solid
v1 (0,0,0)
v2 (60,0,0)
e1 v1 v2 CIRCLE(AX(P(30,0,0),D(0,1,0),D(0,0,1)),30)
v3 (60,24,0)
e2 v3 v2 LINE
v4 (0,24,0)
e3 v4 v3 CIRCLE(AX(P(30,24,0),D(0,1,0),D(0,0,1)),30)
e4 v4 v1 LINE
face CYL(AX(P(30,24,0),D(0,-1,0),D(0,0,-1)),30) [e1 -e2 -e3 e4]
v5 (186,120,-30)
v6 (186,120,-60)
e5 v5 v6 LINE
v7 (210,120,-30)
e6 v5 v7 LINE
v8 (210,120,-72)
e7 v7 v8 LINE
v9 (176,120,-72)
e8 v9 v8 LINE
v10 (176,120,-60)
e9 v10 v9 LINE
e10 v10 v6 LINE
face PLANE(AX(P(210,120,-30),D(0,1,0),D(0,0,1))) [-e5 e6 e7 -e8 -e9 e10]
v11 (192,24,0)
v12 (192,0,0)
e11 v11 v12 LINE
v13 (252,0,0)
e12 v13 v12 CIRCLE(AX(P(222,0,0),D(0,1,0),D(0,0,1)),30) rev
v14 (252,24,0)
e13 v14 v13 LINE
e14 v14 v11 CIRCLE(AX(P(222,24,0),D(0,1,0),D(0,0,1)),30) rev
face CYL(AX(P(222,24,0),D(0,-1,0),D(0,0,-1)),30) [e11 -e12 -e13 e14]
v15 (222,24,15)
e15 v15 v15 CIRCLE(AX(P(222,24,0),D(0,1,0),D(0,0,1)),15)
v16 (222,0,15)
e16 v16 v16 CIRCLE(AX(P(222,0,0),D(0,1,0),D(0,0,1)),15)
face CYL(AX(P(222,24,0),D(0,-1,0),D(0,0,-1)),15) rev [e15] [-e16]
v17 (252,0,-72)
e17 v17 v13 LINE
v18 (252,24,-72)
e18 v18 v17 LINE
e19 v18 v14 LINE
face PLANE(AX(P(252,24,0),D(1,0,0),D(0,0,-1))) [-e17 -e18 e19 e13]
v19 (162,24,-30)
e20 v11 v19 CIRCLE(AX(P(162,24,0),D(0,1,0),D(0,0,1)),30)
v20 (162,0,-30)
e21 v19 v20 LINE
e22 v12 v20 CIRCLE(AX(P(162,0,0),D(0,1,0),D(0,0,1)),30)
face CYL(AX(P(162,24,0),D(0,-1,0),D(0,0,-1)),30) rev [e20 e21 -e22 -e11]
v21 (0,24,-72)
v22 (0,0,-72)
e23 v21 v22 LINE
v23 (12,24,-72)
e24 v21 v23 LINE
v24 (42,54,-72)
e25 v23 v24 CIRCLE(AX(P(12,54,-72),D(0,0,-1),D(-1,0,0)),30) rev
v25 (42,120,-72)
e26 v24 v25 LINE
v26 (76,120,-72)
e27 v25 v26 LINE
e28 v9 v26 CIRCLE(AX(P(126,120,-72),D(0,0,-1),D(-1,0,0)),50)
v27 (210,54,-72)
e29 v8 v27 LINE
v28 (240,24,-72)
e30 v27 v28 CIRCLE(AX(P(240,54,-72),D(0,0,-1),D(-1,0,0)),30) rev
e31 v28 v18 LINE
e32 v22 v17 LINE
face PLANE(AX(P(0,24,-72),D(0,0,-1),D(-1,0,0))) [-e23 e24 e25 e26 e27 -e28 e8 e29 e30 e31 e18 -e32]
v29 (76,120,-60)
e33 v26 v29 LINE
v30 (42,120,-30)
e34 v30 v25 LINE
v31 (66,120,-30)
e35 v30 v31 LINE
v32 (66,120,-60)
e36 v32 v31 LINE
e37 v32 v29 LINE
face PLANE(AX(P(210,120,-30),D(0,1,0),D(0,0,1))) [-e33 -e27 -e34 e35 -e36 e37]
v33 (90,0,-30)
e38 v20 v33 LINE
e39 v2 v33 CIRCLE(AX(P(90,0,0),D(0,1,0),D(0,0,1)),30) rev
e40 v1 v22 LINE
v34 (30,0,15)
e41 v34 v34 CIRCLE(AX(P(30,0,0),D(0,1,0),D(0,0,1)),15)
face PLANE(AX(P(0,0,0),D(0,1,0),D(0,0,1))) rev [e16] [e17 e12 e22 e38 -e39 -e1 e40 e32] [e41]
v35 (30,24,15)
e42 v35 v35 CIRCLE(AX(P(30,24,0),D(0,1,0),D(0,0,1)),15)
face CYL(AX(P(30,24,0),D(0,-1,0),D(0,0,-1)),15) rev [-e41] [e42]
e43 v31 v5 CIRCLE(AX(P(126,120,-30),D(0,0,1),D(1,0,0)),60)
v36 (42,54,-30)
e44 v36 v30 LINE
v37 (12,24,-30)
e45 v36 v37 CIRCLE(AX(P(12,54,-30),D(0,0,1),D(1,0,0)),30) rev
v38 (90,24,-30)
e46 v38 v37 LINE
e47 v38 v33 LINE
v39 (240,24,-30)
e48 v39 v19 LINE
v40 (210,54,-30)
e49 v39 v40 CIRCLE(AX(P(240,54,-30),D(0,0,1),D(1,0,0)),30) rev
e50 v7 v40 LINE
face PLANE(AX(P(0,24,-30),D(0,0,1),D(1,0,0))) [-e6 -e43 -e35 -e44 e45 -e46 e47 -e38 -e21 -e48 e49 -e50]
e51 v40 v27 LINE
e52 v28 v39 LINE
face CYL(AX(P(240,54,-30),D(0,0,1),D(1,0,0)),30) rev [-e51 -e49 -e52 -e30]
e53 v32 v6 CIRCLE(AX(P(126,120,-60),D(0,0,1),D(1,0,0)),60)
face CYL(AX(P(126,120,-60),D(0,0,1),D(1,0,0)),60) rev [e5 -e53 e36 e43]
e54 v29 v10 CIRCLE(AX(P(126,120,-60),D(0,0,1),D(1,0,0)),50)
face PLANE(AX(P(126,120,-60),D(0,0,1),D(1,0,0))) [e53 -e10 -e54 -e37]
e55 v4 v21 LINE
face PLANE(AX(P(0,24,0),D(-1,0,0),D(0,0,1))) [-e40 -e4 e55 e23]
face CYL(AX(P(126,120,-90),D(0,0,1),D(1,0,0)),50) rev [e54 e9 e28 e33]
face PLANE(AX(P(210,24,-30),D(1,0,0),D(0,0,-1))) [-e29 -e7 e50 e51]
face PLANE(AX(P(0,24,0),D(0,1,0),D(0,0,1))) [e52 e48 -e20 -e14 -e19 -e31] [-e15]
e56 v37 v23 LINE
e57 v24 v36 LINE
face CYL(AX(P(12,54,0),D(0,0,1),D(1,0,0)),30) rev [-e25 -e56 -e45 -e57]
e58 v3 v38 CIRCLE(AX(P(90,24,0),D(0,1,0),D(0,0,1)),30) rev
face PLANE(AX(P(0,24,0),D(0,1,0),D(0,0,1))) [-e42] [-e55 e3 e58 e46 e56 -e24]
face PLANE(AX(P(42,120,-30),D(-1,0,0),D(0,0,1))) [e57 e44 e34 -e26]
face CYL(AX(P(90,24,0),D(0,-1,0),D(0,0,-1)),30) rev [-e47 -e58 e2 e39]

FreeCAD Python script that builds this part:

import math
import FreeCAD as App
import Part
import Sketcher


def edges_at(feature, points):
    """Names of the edges that pass closest to the given points."""
    edges = feature.Shape.Edges
    near = lambda p: min(range(len(edges)), key=lambda i: edges[i].distToShape(Part.Vertex(*p))[0])
    return sorted({f"Edge{near(p) + 1}" for p in points})

doc = App.newDocument("Part")
body = doc.addObject("PartDesign::Body", "Body")

# Sketch on XZ plane
sketch1 = body.newObject("Sketcher::SketchObject", "Sketch")
sketch1.AttachmentSupport = (doc.getObject("XZ_Plane"), [""])
sketch1.MapMode = "FlatFace"
sketch1.addGeometry([
    Part.LineSegment(App.Vector(252, -72, 0), App.Vector(0, -72, 0)),  # 0
    Part.LineSegment(App.Vector(0, -72, 0), App.Vector(0, 0, 0)),  # 1
    Part.ArcOfCircle(Part.Circle(App.Vector(30, 0, 0), App.Vector(0, 0, 1), 30), math.radians(0), math.radians(180)),  # 2
    Part.ArcOfCircle(Part.Circle(App.Vector(90, 0, 0), App.Vector(0, 0, 1), 30), math.radians(180), math.radians(270)),  # 3
    Part.LineSegment(App.Vector(90, -30, 0), App.Vector(162, -30, 0)),  # 4
    Part.ArcOfCircle(Part.Circle(App.Vector(162, 0, 0), App.Vector(0, 0, 1), 30), math.radians(-90), math.radians(0)),  # 5
    Part.ArcOfCircle(Part.Circle(App.Vector(222, 0, 0), App.Vector(0, 0, 1), 30), math.radians(0), math.radians(180)),  # 6
    Part.LineSegment(App.Vector(252, 0, 0), App.Vector(252, -72, 0)),  # 7
    Part.Circle(App.Vector(222, 0, 0), App.Vector(0, 0, 1), 15),  # 8
    Part.Circle(App.Vector(30, 0, 0), App.Vector(0, 0, 1), 15),  # 9
], False)
sketch1.addConstraint([
    Sketcher.Constraint("Coincident", 0, 2, 1, 1),
    Sketcher.Constraint("Tangent", 1, 2, 2, 2),
    Sketcher.Constraint("Tangent", 2, 1, 3, 1),
    Sketcher.Constraint("Tangent", 3, 2, 4, 1),
    Sketcher.Constraint("Tangent", 4, 2, 5, 1),
    Sketcher.Constraint("Tangent", 5, 2, 6, 2),
    Sketcher.Constraint("Tangent", 6, 1, 7, 1),
    Sketcher.Constraint("Coincident", 7, 2, 0, 1),
    Sketcher.Constraint("Horizontal", 0),
    Sketcher.Constraint("Vertical", 1),
    Sketcher.Constraint("Horizontal", 4),
    Sketcher.Constraint("Vertical", 7),
    Sketcher.Constraint("Coincident", 1, 2, -1, 1),
    Sketcher.Constraint("Coincident", 8, 3, 6, 3),
    Sketcher.Constraint("Coincident", 9, 3, 2, 3),
    Sketcher.Constraint("Equal", 2, 3),
    Sketcher.Constraint("Equal", 3, 5),
    Sketcher.Constraint("Equal", 5, 6),
    Sketcher.Constraint("Equal", 8, 9),
    Sketcher.Constraint("PointOnObject", 3, 3, -1),
    Sketcher.Constraint("PointOnObject", 6, 3, -1),
    Sketcher.Constraint("Equal", 4, 1),
    Sketcher.Constraint("Diameter", 8, 30.0),
    Sketcher.Constraint("Radius", 2, 30.0),
    Sketcher.Constraint("DistanceX", 0, 2, 0, 1, 252.0),
])
pad1 = body.newObject("PartDesign::Pad", "Pad")
pad1.Profile = sketch1
pad1.Length = 24
pad1.Reversed = True

# Sketch on XY plane
sketch2 = body.newObject("Sketcher::SketchObject", "Sketch001")
sketch2.AttachmentSupport = (doc.getObject("XY_Plane"), [""])
sketch2.MapMode = "FlatFace"
sketch2.AttachmentOffset = App.Placement(App.Vector(0, 0, -72), App.Rotation())
sketch2.addGeometry([
    Part.LineSegment(App.Vector(210, 120, 0), App.Vector(210, 24, 0)),
    Part.LineSegment(App.Vector(210, 24, 0), App.Vector(42, 24, 0)),
    Part.LineSegment(App.Vector(42, 24, 0), App.Vector(42, 120, 0)),
    Part.LineSegment(App.Vector(42, 120, 0), App.Vector(210, 120, 0)),
], False)
sketch2.addConstraint([
    Sketcher.Constraint("Coincident", 0, 2, 1, 1),
    Sketcher.Constraint("Coincident", 1, 2, 2, 1),
    Sketcher.Constraint("Coincident", 2, 2, 3, 1),
    Sketcher.Constraint("Coincident", 3, 2, 0, 1),
    Sketcher.Constraint("Vertical", 0),
    Sketcher.Constraint("Horizontal", 1),
    Sketcher.Constraint("Vertical", 2),
    Sketcher.Constraint("Horizontal", 3),
    Sketcher.Constraint("DistanceX", 1, 2, 1, 1, 168.0),
    Sketcher.Constraint("DistanceY", 0, 2, 0, 1, 96.0),
    Sketcher.Constraint("DistanceX", -1, 1, 0, 2, 210.0),
    Sketcher.Constraint("DistanceY", -1, 1, 0, 2, 24.0),
])
pad2 = body.newObject("PartDesign::Pad", "Pad001")
pad2.Profile = sketch2
pad2.Length = 42

# Sketch on XY plane
sketch3 = body.newObject("Sketcher::SketchObject", "Sketch002")
sketch3.AttachmentSupport = (doc.getObject("XY_Plane"), [""])
sketch3.MapMode = "FlatFace"
sketch3.AttachmentOffset = App.Placement(App.Vector(0, 0, -30), App.Rotation())
sketch3.addGeometry(Part.Circle(App.Vector(126, 120, 0), App.Vector(0, 0, 1), 60), False)
sketch3.addConstraint([
    Sketcher.Constraint("Diameter", 0, 120.0),
    Sketcher.Constraint("DistanceX", -1, 1, 0, 3, 126.0),
    Sketcher.Constraint("DistanceY", -1, 1, 0, 3, 120.0),
])
pocket1 = body.newObject("PartDesign::Pocket", "Pocket")
pocket1.Profile = sketch3
pocket1.Length = 30

# Sketch on XY plane
sketch4 = body.newObject("Sketcher::SketchObject", "Sketch003")
sketch4.AttachmentSupport = (doc.getObject("XY_Plane"), [""])
sketch4.MapMode = "FlatFace"
sketch4.AttachmentOffset = App.Placement(App.Vector(0, 0, -60), App.Rotation())
sketch4.addGeometry(Part.Circle(App.Vector(126, 120, 0), App.Vector(0, 0, 1), 50), False)
sketch4.addConstraint([
    Sketcher.Constraint("Diameter", 0, 100.0),
    Sketcher.Constraint("DistanceX", -1, 1, 0, 3, 126.0),
    Sketcher.Constraint("DistanceY", -1, 1, 0, 3, 120.0),
])
pocket2 = body.newObject("PartDesign::Pocket", "Pocket001")
pocket2.Profile = sketch4
pocket2.Length = 30
doc.recompute()

fillet = body.newObject("PartDesign::Fillet", "Fillet")
fillet.Base = (pocket2, edges_at(pocket2, [(42, 24, -51), (210, 24, -51)]))
fillet.Radius = 30

doc.recompute()
